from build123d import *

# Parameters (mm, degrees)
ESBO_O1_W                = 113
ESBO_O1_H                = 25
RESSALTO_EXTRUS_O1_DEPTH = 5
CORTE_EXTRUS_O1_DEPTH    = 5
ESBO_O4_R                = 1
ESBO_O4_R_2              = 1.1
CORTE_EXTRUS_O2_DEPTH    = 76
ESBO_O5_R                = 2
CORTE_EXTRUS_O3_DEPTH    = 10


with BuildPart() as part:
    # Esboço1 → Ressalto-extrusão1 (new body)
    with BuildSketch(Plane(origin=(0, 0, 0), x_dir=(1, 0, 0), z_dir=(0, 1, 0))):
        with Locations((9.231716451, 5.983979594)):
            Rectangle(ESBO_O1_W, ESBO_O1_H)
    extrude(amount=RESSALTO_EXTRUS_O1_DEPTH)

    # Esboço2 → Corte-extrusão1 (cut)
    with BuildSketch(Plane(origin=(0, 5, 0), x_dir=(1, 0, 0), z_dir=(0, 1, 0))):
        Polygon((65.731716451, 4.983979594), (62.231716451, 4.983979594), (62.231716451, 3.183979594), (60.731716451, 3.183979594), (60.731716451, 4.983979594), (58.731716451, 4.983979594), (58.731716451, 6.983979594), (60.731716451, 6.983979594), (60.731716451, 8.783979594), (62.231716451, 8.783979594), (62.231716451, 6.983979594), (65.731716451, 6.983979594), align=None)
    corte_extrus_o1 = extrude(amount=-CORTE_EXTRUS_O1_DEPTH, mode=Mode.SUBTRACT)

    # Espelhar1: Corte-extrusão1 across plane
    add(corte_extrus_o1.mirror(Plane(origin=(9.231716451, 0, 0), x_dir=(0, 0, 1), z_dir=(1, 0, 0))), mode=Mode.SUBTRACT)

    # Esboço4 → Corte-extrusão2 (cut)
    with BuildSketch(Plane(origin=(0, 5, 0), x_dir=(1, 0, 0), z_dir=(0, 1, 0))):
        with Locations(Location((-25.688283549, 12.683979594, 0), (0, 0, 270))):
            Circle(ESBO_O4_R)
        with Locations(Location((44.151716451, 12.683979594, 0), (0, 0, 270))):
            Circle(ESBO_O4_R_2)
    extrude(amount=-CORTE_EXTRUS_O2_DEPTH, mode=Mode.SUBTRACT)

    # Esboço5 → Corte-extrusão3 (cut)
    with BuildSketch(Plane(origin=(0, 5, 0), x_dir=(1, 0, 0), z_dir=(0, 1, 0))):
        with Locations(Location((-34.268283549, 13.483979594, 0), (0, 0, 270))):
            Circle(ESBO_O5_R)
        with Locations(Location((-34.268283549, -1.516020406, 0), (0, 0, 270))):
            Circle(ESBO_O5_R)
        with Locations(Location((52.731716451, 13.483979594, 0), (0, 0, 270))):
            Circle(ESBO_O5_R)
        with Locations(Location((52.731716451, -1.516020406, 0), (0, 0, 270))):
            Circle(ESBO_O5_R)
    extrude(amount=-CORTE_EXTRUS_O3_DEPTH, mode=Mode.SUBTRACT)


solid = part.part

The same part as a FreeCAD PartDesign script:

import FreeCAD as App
import Part
import Sketcher
Q = App.Units.Quantity

doc = App.newDocument("Part")
body = doc.addObject("PartDesign::Body", "Body")

# Sketch on XZ plane
sketch1 = body.newObject("Sketcher::SketchObject", "Sketch")
sketch1.AttachmentSupport = (doc.getObject("XZ_Plane"), [""])
sketch1.MapMode = "FlatFace"
sketch1.addGeometry([
    Part.LineSegment(App.Vector(-47, -18, 0), App.Vector(-47, 7, 0)),
    Part.LineSegment(App.Vector(-47, 7, 0), App.Vector(66, 7, 0)),
    Part.LineSegment(App.Vector(66, 7, 0), App.Vector(66, -18, 0)),
    Part.LineSegment(App.Vector(66, -18, 0), App.Vector(-47, -18, 0)),
], False)
sketch1.addConstraint([
    Sketcher.Constraint("Coincident", 0, 2, 1, 1),
    Sketcher.Constraint("Coincident", 1, 2, 2, 1),
    Sketcher.Constraint("Coincident", 2, 2, 3, 1),
    Sketcher.Constraint("Coincident", 3, 2, 0, 1),
    Sketcher.Constraint("Vertical", 0),
    Sketcher.Constraint("Horizontal", 1),
    Sketcher.Constraint("Vertical", 2),
    Sketcher.Constraint("Horizontal", 3),
    Sketcher.Constraint("DistanceX", 1, 1, 1, 2, Q("113 mm")),
    Sketcher.Constraint("DistanceY", 0, 1, 0, 2, Q("25 mm")),
    Sketcher.Constraint("DistanceY", -1, 1, 0, 2, Q("6.51602 mm")),
    Sketcher.Constraint("DistanceX", 0, 2, -1, 1, Q("47.268284 mm")),
])
pad1 = body.newObject("PartDesign::Pad", "Pad")
pad1.Profile = sketch1
pad1.Length = 5
pad1.Reversed = True

# Sketch on XZ plane
sketch2 = body.newObject("Sketcher::SketchObject", "Sketch001")
sketch2.AttachmentSupport = (doc.getObject("XZ_Plane"), [""])
sketch2.MapMode = "FlatFace"
sketch2.AttachmentOffset = App.Placement(App.Vector(0, 0, -5), App.Rotation())
sketch2.addGeometry([
    Part.LineSegment(App.Vector(62.2, -5, 0), App.Vector(65.7, -5, 0)),  # 0
    Part.LineSegment(App.Vector(65.7, -5, 0), App.Vector(65.7, -7, 0)),  # 1
    Part.LineSegment(App.Vector(65.7, -7, 0), App.Vector(62.2, -7, 0)),  # 2
    Part.LineSegment(App.Vector(62.2, -7, 0), App.Vector(62.2, -8.8, 0)),  # 3
    Part.LineSegment(App.Vector(62.2, -8.8, 0), App.Vector(60.7, -8.8, 0)),  # 4
    Part.LineSegment(App.Vector(60.7, -8.8, 0), App.Vector(60.7, -7, 0)),  # 5
    Part.LineSegment(App.Vector(60.7, -7, 0), App.Vector(58.7, -7, 0)),  # 6
    Part.LineSegment(App.Vector(58.7, -7, 0), App.Vector(58.7, -5, 0)),  # 7
    Part.LineSegment(App.Vector(58.7, -5, 0), App.Vector(60.7, -5, 0)),  # 8
    Part.LineSegment(App.Vector(60.7, -5, 0), App.Vector(60.7, -3.2, 0)),  # 9
    Part.LineSegment(App.Vector(60.7, -3.2, 0), App.Vector(62.2, -3.2, 0)),  # 10
    Part.LineSegment(App.Vector(62.2, -3.2, 0), App.Vector(62.2, -5, 0)),  # 11
], False)
sketch2.addConstraint([
    Sketcher.Constraint("Coincident", 0, 2, 1, 1),
    Sketcher.Constraint("Coincident", 1, 2, 2, 1),
    Sketcher.Constraint("Coincident", 2, 2, 3, 1),
    Sketcher.Constraint("Coincident", 3, 2, 4, 1),
    Sketcher.Constraint("Coincident", 4, 2, 5, 1),
    Sketcher.Constraint("Coincident", 5, 2, 6, 1),
    Sketcher.Constraint("Coincident", 6, 2, 7, 1),
    Sketcher.Constraint("Coincident", 7, 2, 8, 1),
    Sketcher.Constraint("Coincident", 8, 2, 9, 1),
    Sketcher.Constraint("Coincident", 9, 2, 10, 1),
    Sketcher.Constraint("Coincident", 10, 2, 11, 1),
    Sketcher.Constraint("Coincident", 11, 2, 0, 1),
    Sketcher.Constraint("Horizontal", 0),
    Sketcher.Constraint("Vertical", 1),
    Sketcher.Constraint("Horizontal", 2),
    Sketcher.Constraint("Vertical", 3),
    Sketcher.Constraint("Horizontal", 4),
    Sketcher.Constraint("Vertical", 5),
    Sketcher.Constraint("Horizontal", 6),
    Sketcher.Constraint("Vertical", 7),
    Sketcher.Constraint("Horizontal", 8),
    Sketcher.Constraint("Vertical", 9),
    Sketcher.Constraint("Horizontal", 10),
    Sketcher.Constraint("Vertical", 11),
    Sketcher.Constraint("Horizontal", 2, 2, 5, 2),
    Sketcher.Constraint("Horizontal", 0, 2, 7, 2),
    Sketcher.Constraint("Vertical", 5, 2, 8, 2),
    Sketcher.Constraint("Vertical", 3, 2, 10, 2),
    Sketcher.Constraint("Equal", 8, 1),
    Sketcher.Constraint("Equal", 5, 9),
    Sketcher.Constraint("DistanceX", 6, 2, 6, 1, Q("2 mm")),
    Sketcher.Constraint("DistanceX", 0, 1, 0, 2, Q("3.5 mm")),
    Sketcher.Constraint("DistanceX", 4, 2, 4, 1, Q("1.5 mm")),
    Sketcher.Constraint("DistanceY", 3, 2, 3, 1, Q("1.8 mm")),
    Sketcher.Constraint("DistanceY", 0, 2, -1, 1, Q("4.98398 mm")),
    Sketcher.Constraint("DistanceX", -1, 1, 0, 2, Q("65.731716 mm")),
])
pocket1 = body.newObject("PartDesign::Pocket", "Pocket")
pocket1.Profile = sketch2
pocket1.Length = 5
pocket1.Reversed = True
doc.recompute()

datumplane = body.newObject("PartDesign::Plane", "DatumPlane")
datumplane.AttachmentSupport = (doc.getObject("YZ_Plane"), [""])
datumplane.MapMode = "FlatFace"
datumplane.AttachmentOffset = App.Placement(App.Vector(0, 0, 9.231716), App.Rotation())
mirrored = body.newObject("PartDesign::Mirrored", "Mirrored")
mirrored.Originals = [pocket1]
mirrored.MirrorPlane = (datumplane, [""])
body.Tip = mirrored

# Sketch on XZ plane
sketch3 = body.newObject("Sketcher::SketchObject", "Sketch002")
sketch3.AttachmentSupport = (doc.getObject("XZ_Plane"), [""])
sketch3.MapMode = "FlatFace"
sketch3.AttachmentOffset = App.Placement(App.Vector(0, 0, -5), App.Rotation())
sketch3.addGeometry([
    Part.Circle(App.Vector(-25.7, -12.7, 0), App.Vector(0, 0, 1), 1),
    Part.Circle(App.Vector(44.2, -12.7, 0), App.Vector(0, 0, 1), 1.1),
], False)
sketch3.addConstraint([
    Sketcher.Constraint("Horizontal", 0, 3, 1, 3),
    Sketcher.Constraint("Diameter", 0, Q("2 mm")),
    Sketcher.Constraint("Diameter", 1, Q("2.2 mm")),
    Sketcher.Constraint("DistanceX", 0, 3, 1, 3, Q("69.84 mm")),
    Sketcher.Constraint("DistanceY", 0, 3, -1, 1, Q("12.68398 mm")),
    Sketcher.Constraint("DistanceX", 0, 3, -1, 1, Q("25.688284 mm")),
])
pocket2 = body.newObject("PartDesign::Pocket", "Pocket001")
pocket2.Profile = sketch3
pocket2.Length = 76
pocket2.Reversed = True

# Sketch on XZ plane
sketch4 = body.newObject("Sketcher::SketchObject", "Sketch003")
sketch4.AttachmentSupport = (doc.getObject("XZ_Plane"), [""])
sketch4.MapMode = "FlatFace"
sketch4.AttachmentOffset = App.Placement(App.Vector(0, 0, -5), App.Rotation())
sketch4.addGeometry([
    Part.Circle(App.Vector(-34.3, -13.5, 0), App.Vector(0, 0, 1), 2),
    Part.Circle(App.Vector(-34.3, 1.5, 0), App.Vector(0, 0, 1), 2),
    Part.Circle(App.Vector(52.7, -13.5, 0), App.Vector(0, 0, 1), 2),
    Part.Circle(App.Vector(52.7, 1.5, 0), App.Vector(0, 0, 1), 2),
], False)
sketch4.addConstraint([
    Sketcher.Constraint("Equal", 0, 1),
    Sketcher.Constraint("Equal", 1, 2),
    Sketcher.Constraint("Equal", 2, 3),
    Sketcher.Constraint("Horizontal", 0, 3, 2, 3),
    Sketcher.Constraint("Horizontal", 1, 3, 3, 3),
    Sketcher.Constraint("Vertical", 0, 3, 1, 3),
    Sketcher.Constraint("Vertical", 2, 3, 3, 3),
    Sketcher.Constraint("Diameter", 0, Q("4 mm")),
    Sketcher.Constraint("DistanceY", 0, 3, 1, 3, Q("15 mm")),
    Sketcher.Constraint("DistanceX", 0, 3, 2, 3, Q("87 mm")),
    Sketcher.Constraint("DistanceY", 0, 3, -1, 1, Q("13.48398 mm")),
    Sketcher.Constraint("DistanceX", 0, 3, -1, 1, Q("34.268284 mm")),
])
pocket3 = body.newObject("PartDesign::Pocket", "Pocket002")
pocket3.Profile = sketch4
pocket3.Length = 10
pocket3.Reversed = True

doc.recompute()
